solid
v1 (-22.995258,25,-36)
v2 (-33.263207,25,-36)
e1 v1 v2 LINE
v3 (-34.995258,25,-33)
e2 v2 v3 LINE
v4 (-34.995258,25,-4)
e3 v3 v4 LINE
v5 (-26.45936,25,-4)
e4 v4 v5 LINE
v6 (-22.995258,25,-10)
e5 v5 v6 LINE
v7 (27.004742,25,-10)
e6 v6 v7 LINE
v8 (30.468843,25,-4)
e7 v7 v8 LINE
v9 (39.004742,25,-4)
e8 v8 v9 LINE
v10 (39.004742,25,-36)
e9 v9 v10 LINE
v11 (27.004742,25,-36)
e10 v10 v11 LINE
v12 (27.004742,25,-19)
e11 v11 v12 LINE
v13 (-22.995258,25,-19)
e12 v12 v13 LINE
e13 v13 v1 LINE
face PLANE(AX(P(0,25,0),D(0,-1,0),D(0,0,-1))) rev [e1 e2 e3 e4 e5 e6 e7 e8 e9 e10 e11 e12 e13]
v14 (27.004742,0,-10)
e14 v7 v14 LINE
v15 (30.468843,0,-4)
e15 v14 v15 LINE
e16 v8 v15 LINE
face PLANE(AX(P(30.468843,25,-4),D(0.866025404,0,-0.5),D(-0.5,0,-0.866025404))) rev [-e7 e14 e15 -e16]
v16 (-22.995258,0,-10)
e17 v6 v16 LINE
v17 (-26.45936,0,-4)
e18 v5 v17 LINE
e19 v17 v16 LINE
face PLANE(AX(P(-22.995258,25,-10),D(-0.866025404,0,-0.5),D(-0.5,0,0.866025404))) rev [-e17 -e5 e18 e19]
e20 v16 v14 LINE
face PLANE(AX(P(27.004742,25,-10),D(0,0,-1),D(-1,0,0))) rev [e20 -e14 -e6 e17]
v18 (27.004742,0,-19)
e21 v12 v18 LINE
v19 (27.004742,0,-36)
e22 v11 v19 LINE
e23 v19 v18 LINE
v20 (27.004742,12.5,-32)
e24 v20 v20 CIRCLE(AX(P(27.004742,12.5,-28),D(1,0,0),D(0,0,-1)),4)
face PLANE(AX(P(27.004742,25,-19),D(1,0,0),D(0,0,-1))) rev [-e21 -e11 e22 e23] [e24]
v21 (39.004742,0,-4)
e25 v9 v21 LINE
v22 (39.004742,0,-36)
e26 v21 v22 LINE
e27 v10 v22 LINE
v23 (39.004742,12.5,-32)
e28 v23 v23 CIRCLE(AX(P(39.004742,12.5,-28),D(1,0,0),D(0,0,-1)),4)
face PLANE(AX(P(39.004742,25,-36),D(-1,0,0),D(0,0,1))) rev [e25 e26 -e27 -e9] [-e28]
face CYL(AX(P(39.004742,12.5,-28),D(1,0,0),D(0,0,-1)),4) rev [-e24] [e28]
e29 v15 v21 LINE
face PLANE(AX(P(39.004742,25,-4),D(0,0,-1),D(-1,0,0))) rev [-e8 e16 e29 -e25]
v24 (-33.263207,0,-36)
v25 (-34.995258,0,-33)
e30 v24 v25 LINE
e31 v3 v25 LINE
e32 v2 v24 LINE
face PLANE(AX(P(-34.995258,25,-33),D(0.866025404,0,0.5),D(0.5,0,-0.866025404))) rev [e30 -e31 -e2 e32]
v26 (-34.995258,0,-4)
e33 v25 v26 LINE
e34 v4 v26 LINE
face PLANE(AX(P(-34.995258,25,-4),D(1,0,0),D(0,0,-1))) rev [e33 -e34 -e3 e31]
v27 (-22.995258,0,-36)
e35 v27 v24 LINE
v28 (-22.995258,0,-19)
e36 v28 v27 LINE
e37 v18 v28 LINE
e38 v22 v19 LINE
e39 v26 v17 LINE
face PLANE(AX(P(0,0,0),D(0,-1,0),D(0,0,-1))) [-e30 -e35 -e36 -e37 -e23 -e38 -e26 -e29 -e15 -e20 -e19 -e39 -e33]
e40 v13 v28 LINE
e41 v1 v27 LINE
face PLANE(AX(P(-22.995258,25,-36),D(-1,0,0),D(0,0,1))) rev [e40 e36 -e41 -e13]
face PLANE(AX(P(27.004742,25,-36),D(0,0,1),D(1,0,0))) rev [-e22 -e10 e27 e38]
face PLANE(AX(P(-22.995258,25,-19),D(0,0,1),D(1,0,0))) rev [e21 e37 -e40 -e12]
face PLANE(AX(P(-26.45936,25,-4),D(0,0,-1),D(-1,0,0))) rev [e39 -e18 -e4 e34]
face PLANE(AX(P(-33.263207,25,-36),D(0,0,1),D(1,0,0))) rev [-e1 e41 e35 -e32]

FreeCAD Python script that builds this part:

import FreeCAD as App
import Part
import Sketcher
Q = App.Units.Quantity


def add_polygon(sketch, points):
    """Adds a closed chain of lines whose ends are joined by coincident constraints."""
    first, n = sketch.GeometryCount, len(points)
    for a, b in zip(points, points[1:] + points[:1]):
        sketch.addGeometry(Part.LineSegment(App.Vector(*a, 0), App.Vector(*b, 0)), False)
    for i in range(n):
        sketch.addConstraint(Sketcher.Constraint("Coincident", first + i, 2, first + (i + 1) % n, 1))

doc = App.newDocument("Part")
params = doc.addObject("Spreadsheet::Sheet", "Params")
for row, (alias, value) in enumerate([
    ("sketch1_width", "50 mm"),
    ("sketch1_width2", "12 mm"),
    ("sketch1_height", "29 mm"),
    ("sketch1_height2", "32 mm"),
    ("sketch1_height3", "17 mm"),
    ("pad1_length", "25 mm"),
    ("sketch2_diameter", "8 mm"),
    ("hole_diameter", "8 mm"),
    ("hole_depth", "12 mm"),
], start=1):
    params.set(f"A{row}", alias)
    params.set(f"B{row}", "=" + value)
    params.setAlias(f"B{row}", alias)

body = doc.addObject("PartDesign::Body", "Body")

# Sketch on XZ plane
sketch1 = body.newObject("Sketcher::SketchObject", "Sketch")
sketch1.AttachmentSupport = (doc.getObject("XZ_Plane"), [""])
sketch1.MapMode = "FlatFace"
add_polygon(sketch1, [(-35, -33), (-35, -4), (-26.5, -4), (-23, -10), (27, -10), (30.5, -4), (39, -4), (39, -36), (27, -36), (27, -19), (-23, -19), (-23, -36), (-33.3, -36)])  # lines 0-12
sketch1.addConstraint(Sketcher.Constraint("Vertical", 0))
sketch1.addConstraint(Sketcher.Constraint("Horizontal", 1))
sketch1.addConstraint(Sketcher.Constraint("Horizontal", 3))
sketch1.addConstraint(Sketcher.Constraint("Horizontal", 5))
sketch1.addConstraint(Sketcher.Constraint("Vertical", 6))
sketch1.addConstraint(Sketcher.Constraint("Horizontal", 7))
sketch1.addConstraint(Sketcher.Constraint("Vertical", 8))
sketch1.addConstraint(Sketcher.Constraint("Horizontal", 9))
sketch1.addConstraint(Sketcher.Constraint("Vertical", 10))
sketch1.addConstraint(Sketcher.Constraint("Horizontal", 11))
sketch1.addConstraint(Sketcher.Constraint("Parallel", 2, 12))
sketch1.addConstraint(Sketcher.Constraint("Horizontal", 1, 2, 4, 2))
sketch1.addConstraint(Sketcher.Constraint("Horizontal", 7, 2, 10, 2))
sketch1.addConstraint(Sketcher.Constraint("Vertical", 3, 2, 7, 2))
sketch1.addConstraint(Sketcher.Constraint("Vertical", 2, 2, 9, 2))
sketch1.addConstraint(Sketcher.Constraint("Equal", 1, 5))
sketch1.addConstraint(Sketcher.Constraint("Equal", 2, 4))
sketch1.addConstraint(Sketcher.Constraint("DistanceX", 3, 1, 3, 2, 50.0))
sketch1.addConstraint(Sketcher.Constraint("DistanceX", 7, 2, 7, 1, 12.0))
sketch1.addConstraint(Sketcher.Constraint("DistanceY", 0, 1, 0, 2, 29.0))
sketch1.addConstraint(Sketcher.Constraint("DistanceY", 6, 2, 6, 1, 32.0))
sketch1.addConstraint(Sketcher.Constraint("DistanceY", 8, 1, 8, 2, 17.0))
sketch1.addConstraint(Sketcher.Constraint("Angle", 2, Q("-60 deg")))
sketch1.addConstraint(Sketcher.Constraint("DistanceY", 0, 2, -1, 1, 4.0))
sketch1.addConstraint(Sketcher.Constraint("DistanceY", 2, 2, -1, 1, 10.0))
sketch1.addConstraint(Sketcher.Constraint("DistanceX", 0, 2, -1, 1, 34.995258))
sketch1.setExpression("Constraints[30]", "Params.sketch1_width")
sketch1.setExpression("Constraints[31]", "Params.sketch1_width2")
sketch1.setExpression("Constraints[32]", "Params.sketch1_height")
sketch1.setExpression("Constraints[33]", "Params.sketch1_height2")
sketch1.setExpression("Constraints[34]", "Params.sketch1_height3")
pad1 = body.newObject("PartDesign::Pad", "Pad")
pad1.Profile = sketch1
pad1.setExpression("Length", "Params.pad1_length")
pad1.Reversed = True

# Sketch on YZ plane
sketch2 = body.newObject("Sketcher::SketchObject", "Sketch001")
sketch2.AttachmentSupport = (doc.getObject("YZ_Plane"), [""])
sketch2.MapMode = "FlatFace"
sketch2.AttachmentOffset = App.Placement(App.Vector(0, 0, 39.004742), App.Rotation())
sketch2.addGeometry(Part.Circle(App.Vector(12.5, -28, 0), App.Vector(0, 0, 1), 4), False)
sketch2.addConstraint(Sketcher.Constraint("Diameter", 0, 8.0))
sketch2.addConstraint(Sketcher.Constraint("DistanceY", 0, 3, -1, 1, 28.0))
sketch2.addConstraint(Sketcher.Constraint("DistanceX", -1, 1, 0, 3, 12.5))
sketch2.setExpression("Constraints[0]", "Params.sketch2_diameter")
doc.recompute()
hole = body.newObject("PartDesign::Hole", "Hole")
hole.Profile = sketch2
hole.ThreadType = "None"
hole.setExpression("Diameter", "Params.hole_diameter")
hole.DepthType = "Dimension"
hole.setExpression("Depth", "Params.hole_depth")
hole.DrillPoint = "Flat"

doc.recompute()
